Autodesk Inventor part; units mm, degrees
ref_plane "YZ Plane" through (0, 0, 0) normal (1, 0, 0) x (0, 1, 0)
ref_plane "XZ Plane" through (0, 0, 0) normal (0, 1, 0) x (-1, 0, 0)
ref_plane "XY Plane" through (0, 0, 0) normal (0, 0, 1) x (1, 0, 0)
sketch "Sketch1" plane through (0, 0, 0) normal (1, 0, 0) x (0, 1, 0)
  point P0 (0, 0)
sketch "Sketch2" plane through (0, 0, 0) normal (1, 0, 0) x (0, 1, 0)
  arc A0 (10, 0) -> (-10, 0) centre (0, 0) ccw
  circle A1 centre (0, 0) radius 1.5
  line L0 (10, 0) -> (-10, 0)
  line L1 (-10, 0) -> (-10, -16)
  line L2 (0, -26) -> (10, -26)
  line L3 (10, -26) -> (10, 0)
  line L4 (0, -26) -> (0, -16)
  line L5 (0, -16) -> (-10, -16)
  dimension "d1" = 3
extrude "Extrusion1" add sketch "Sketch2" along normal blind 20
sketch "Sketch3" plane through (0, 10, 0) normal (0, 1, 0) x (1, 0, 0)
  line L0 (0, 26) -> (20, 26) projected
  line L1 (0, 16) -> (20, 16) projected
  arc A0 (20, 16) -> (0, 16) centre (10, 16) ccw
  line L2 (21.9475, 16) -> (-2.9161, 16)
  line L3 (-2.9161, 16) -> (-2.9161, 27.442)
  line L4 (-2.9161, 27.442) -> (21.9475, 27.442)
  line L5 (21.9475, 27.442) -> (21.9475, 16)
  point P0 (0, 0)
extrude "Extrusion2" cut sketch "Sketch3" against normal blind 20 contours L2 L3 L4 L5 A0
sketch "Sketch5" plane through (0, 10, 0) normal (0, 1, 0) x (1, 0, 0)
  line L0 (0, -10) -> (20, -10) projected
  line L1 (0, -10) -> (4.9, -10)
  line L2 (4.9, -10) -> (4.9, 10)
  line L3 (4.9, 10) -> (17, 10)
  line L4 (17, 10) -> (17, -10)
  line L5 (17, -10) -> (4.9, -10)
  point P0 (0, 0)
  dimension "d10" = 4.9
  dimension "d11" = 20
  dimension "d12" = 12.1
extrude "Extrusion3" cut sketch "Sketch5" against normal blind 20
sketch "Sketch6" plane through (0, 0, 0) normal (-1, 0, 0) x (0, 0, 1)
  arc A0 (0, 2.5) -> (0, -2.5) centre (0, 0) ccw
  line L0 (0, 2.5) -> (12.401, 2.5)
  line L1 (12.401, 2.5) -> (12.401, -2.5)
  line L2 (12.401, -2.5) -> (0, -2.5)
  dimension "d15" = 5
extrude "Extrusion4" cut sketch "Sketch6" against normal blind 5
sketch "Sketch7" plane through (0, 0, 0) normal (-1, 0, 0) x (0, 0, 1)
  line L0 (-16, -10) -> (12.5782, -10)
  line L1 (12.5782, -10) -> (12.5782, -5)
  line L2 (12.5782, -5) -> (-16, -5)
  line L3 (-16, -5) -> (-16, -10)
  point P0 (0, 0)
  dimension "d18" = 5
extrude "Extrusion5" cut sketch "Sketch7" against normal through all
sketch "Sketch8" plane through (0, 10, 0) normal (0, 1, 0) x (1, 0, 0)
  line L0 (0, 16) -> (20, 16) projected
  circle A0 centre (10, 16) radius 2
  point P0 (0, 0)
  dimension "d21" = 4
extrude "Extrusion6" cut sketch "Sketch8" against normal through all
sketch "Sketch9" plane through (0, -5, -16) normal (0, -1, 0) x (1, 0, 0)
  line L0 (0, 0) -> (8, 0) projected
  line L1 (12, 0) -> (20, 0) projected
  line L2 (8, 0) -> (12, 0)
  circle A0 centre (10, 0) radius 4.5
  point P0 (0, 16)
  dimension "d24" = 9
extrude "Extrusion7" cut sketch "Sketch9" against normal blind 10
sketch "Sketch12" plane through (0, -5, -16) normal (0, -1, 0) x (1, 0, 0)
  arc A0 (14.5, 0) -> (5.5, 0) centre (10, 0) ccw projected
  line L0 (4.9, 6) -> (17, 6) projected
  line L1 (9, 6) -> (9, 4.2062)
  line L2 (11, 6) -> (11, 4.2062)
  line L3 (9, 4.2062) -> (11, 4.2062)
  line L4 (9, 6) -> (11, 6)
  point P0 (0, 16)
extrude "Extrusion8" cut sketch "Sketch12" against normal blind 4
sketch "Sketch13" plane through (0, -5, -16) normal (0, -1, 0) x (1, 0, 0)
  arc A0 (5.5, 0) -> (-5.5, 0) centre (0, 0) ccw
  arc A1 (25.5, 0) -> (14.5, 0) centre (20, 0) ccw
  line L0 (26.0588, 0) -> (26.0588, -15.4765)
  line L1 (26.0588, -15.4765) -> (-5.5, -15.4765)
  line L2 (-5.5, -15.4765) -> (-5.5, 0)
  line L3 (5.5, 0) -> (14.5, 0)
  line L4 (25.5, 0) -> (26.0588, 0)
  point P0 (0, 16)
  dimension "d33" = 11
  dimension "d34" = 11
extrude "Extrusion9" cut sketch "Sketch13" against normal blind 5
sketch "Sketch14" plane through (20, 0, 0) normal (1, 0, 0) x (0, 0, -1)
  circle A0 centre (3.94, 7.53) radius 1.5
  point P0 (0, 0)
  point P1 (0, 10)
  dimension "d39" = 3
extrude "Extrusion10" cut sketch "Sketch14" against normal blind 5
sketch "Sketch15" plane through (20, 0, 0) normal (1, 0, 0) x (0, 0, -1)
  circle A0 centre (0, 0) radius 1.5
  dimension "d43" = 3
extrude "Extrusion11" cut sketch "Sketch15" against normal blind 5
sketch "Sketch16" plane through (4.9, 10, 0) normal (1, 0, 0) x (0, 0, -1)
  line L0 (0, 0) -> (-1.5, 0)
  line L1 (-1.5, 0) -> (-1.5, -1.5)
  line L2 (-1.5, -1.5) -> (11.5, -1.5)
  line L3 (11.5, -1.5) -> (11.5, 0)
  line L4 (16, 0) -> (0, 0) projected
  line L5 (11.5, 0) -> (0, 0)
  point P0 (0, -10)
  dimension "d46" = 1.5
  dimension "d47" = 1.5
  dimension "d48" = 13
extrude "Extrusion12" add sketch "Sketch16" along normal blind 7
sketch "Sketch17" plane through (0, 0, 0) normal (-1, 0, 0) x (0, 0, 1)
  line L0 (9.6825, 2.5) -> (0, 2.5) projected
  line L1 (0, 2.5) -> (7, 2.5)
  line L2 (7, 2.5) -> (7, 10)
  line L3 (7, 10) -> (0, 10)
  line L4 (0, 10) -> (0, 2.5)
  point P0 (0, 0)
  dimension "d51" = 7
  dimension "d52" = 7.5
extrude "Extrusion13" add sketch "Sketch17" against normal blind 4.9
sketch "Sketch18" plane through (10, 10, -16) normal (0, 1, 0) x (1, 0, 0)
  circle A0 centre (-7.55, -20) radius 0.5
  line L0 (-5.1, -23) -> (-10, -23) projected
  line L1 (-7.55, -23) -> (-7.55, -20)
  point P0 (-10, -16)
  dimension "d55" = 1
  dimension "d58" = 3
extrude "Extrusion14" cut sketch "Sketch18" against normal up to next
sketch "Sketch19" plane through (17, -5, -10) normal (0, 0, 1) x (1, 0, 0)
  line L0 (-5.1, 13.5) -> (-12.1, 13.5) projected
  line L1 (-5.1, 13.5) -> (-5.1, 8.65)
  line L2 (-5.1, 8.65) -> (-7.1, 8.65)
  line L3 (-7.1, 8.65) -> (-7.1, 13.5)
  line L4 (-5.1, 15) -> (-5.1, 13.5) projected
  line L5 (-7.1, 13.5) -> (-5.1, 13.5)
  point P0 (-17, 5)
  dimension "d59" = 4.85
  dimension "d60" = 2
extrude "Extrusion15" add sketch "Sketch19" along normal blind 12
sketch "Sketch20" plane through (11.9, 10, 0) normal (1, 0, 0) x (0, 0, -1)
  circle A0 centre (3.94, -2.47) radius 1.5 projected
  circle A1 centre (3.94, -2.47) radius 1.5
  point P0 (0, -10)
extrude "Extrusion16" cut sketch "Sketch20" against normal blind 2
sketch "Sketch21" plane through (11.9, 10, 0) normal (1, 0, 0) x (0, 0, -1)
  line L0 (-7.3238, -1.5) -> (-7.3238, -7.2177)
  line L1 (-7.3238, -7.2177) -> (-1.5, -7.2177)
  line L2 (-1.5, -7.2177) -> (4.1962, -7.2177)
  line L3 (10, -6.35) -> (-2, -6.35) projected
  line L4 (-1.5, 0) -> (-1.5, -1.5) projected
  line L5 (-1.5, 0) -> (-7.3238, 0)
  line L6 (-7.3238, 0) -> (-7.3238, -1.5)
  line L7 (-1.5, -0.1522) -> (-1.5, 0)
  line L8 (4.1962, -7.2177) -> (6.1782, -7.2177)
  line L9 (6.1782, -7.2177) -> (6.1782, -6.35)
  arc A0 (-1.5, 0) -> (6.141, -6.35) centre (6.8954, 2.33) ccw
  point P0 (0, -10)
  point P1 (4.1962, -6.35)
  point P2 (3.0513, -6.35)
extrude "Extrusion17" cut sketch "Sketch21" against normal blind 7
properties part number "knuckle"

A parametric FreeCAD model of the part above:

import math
import FreeCAD as App
import Part
import Sketcher
Q = App.Units.Quantity

doc = App.newDocument("Part")
params = doc.addObject("Spreadsheet::Sheet", "Params")
for row, (alias, value) in enumerate([
    ("sketch1_radius", "10 mm"),
    ("sketch1_height", "16 mm"),
    ("pad1_length", "20 mm"),
    ("sketch2_radius", "10 mm"),
    ("pocket1_length", "20 mm"),
    ("sketch3_height", "20 mm"),
    ("sketch3_width", "12.1 mm"),
    ("pocket2_length", "20 mm"),
    ("sketch4_radius", "2.5 mm"),
    ("pocket3_length", "5 mm"),
    ("sketch5_width", "5 mm"),
    ("sketch6_diameter", "4 mm"),
    ("sketch7_diameter", "9 mm"),
    ("pocket6_length", "10 mm"),
    ("sketch8_width", "2 mm"),
    ("pocket7_length", "4 mm"),
    ("sketch9_radius", "5.5 mm"),
    ("sketch9_width", "9 mm"),
    ("pocket8_length", "5 mm"),
    ("sketch10_diameter", "3 mm"),
    ("pocket9_length", "5 mm"),
    ("sketch11_diameter", "3 mm"),
    ("pocket10_length", "5 mm"),
    ("sketch12_height", "13 mm"),
    ("sketch12_width", "1.5 mm"),
    ("pad2_length", "7 mm"),
    ("sketch13_height", "7 mm"),
    ("sketch13_width", "7.5 mm"),
    ("pad3_length", "4.9 mm"),
    ("sketch14_diameter", "1 mm"),
    ("sketch15_width", "2 mm"),
    ("sketch15_height", "4.85 mm"),
    ("pad4_length", "12 mm"),
    ("sketch16_diameter", "3 mm"),
    ("pocket12_length", "2 mm"),
    ("pocket13_length", "7 mm"),
], start=1):
    params.set(f"A{row}", alias)
    params.set(f"B{row}", "=" + value)
    params.setAlias(f"B{row}", alias)

body = doc.addObject("PartDesign::Body", "Body")

sketch1 = body.newObject("Sketcher::SketchObject", "Sketch")
sketch1.AttachmentSupport = (doc.getObject("YZ_Plane"), [""])
sketch1.MapMode = "FlatFace"
sketch1.addGeometry(Part.ArcOfCircle(Part.Circle(App.Vector(0, 0, 0), App.Vector(0, 0, 1), 10), math.radians(0), math.radians(180)), False)
sketch1.addGeometry(Part.LineSegment(App.Vector(-10, 0, 0), App.Vector(-10, -16, 0)), False)
sketch1.addGeometry(Part.LineSegment(App.Vector(-10, -16, 0), App.Vector(0, -16, 0)), False)
sketch1.addGeometry(Part.LineSegment(App.Vector(0, -16, 0), App.Vector(0, -26, 0)), False)
sketch1.addGeometry(Part.LineSegment(App.Vector(0, -26, 0), App.Vector(10, -26, 0)), False)
sketch1.addGeometry(Part.LineSegment(App.Vector(10, -26, 0), App.Vector(10, 0, 0)), False)
sketch1.addConstraint(Sketcher.Constraint("Tangent", 0, 2, 1, 1))
sketch1.addConstraint(Sketcher.Constraint("Coincident", 1, 2, 2, 1))
sketch1.addConstraint(Sketcher.Constraint("Coincident", 2, 2, 3, 1))
sketch1.addConstraint(Sketcher.Constraint("Coincident", 3, 2, 4, 1))
sketch1.addConstraint(Sketcher.Constraint("Coincident", 4, 2, 5, 1))
sketch1.addConstraint(Sketcher.Constraint("Tangent", 5, 2, 0, 1))
sketch1.addConstraint(Sketcher.Constraint("Vertical", 1))
sketch1.addConstraint(Sketcher.Constraint("Horizontal", 2))
sketch1.addConstraint(Sketcher.Constraint("Vertical", 3))
sketch1.addConstraint(Sketcher.Constraint("Horizontal", 4))
sketch1.addConstraint(Sketcher.Constraint("Vertical", 5))
sketch1.addConstraint(Sketcher.Constraint("Coincident", 0, 3, -1, 1))
sketch1.addConstraint(Sketcher.Constraint("PointOnObject", 2, 2, -2))
sketch1.addConstraint(Sketcher.Constraint("Equal", 4, 3))
sketch1.addConstraint(Sketcher.Constraint("Radius", 0, Q("10 mm")))
sketch1.addConstraint(Sketcher.Constraint("DistanceY", 1, 2, 1, 1, Q("16 mm")))
sketch1.setExpression("Constraints[14]", "Params.sketch1_radius")
sketch1.setExpression("Constraints[15]", "Params.sketch1_height")
pad1 = body.newObject("PartDesign::Pad", "Pad")
pad1.Profile = sketch1
pad1.setExpression("Length", "Params.pad1_length")

sketch2 = body.newObject("Sketcher::SketchObject", "Sketch001")
sketch2.AttachmentSupport = (doc.getObject("XZ_Plane"), [""])
sketch2.MapMode = "FlatFace"
sketch2.AttachmentOffset = App.Placement(App.Vector(0, 0, -10), App.Rotation())
sketch2.addGeometry(Part.LineSegment(App.Vector(-2.9, -16, 0), App.Vector(0, -16, 0)), False)
sketch2.addGeometry(Part.ArcOfCircle(Part.Circle(App.Vector(10, -16, 0), App.Vector(0, 0, 1), 10), math.radians(180), math.radians(360)), False)
sketch2.addGeometry(Part.LineSegment(App.Vector(20, -16, 0), App.Vector(21.9, -16, 0)), False)
sketch2.addGeometry(Part.LineSegment(App.Vector(21.9, -16, 0), App.Vector(21.9, -27.4, 0)), False)
sketch2.addGeometry(Part.LineSegment(App.Vector(21.9, -27.4, 0), App.Vector(-2.9, -27.4, 0)), False)
sketch2.addGeometry(Part.LineSegment(App.Vector(-2.9, -27.4, 0), App.Vector(-2.9, -16, 0)), False)
sketch2.addConstraint(Sketcher.Constraint("Coincident", 0, 2, 1, 1))
sketch2.addConstraint(Sketcher.Constraint("Coincident", 1, 2, 2, 1))
sketch2.addConstraint(Sketcher.Constraint("Coincident", 2, 2, 3, 1))
sketch2.addConstraint(Sketcher.Constraint("Coincident", 3, 2, 4, 1))
sketch2.addConstraint(Sketcher.Constraint("Coincident", 4, 2, 5, 1))
sketch2.addConstraint(Sketcher.Constraint("Coincident", 5, 2, 0, 1))
sketch2.addConstraint(Sketcher.Constraint("Horizontal", 0))
sketch2.addConstraint(Sketcher.Constraint("Horizontal", 2))
sketch2.addConstraint(Sketcher.Constraint("Vertical", 3))
sketch2.addConstraint(Sketcher.Constraint("Horizontal", 4))
sketch2.addConstraint(Sketcher.Constraint("Vertical", 5))
sketch2.addConstraint(Sketcher.Constraint("PointOnObject", 0, 2, -2))
sketch2.addConstraint(Sketcher.Constraint("Horizontal", 1, 3, 0, 2))
sketch2.addConstraint(Sketcher.Constraint("Horizontal", 0, 2, 1, 2))
sketch2.addConstraint(Sketcher.Constraint("Radius", 1, Q("10 mm")))
sketch2.addConstraint(Sketcher.Constraint("DistanceY", 1, 3, -1, 1, Q("16 mm")))
sketch2.addConstraint(Sketcher.Constraint("DistanceX", 0, 1, 0, 2, Q("2.916 mm")))
sketch2.addConstraint(Sketcher.Constraint("DistanceY", 3, 2, 3, 1, Q("11.442 mm")))
sketch2.addConstraint(Sketcher.Constraint("DistanceX", 2, 1, 2, 2, Q("1.9475 mm")))
sketch2.setExpression("Constraints[14]", "Params.sketch2_radius")
pocket1 = body.newObject("PartDesign::Pocket", "Pocket")
pocket1.Profile = sketch2
pocket1.setExpression("Length", "Params.pocket1_length")
pocket1.Reversed = True

sketch3 = body.newObject("Sketcher::SketchObject", "Sketch002")
sketch3.AttachmentSupport = (doc.getObject("XZ_Plane"), [""])
sketch3.MapMode = "FlatFace"
sketch3.AttachmentOffset = App.Placement(App.Vector(0, 0, -10), App.Rotation())
sketch3.addGeometry(Part.LineSegment(App.Vector(5, -10, 0), App.Vector(5, 10, 0)), False)
sketch3.addGeometry(Part.LineSegment(App.Vector(5, 10, 0), App.Vector(17, 10, 0)), False)
sketch3.addGeometry(Part.LineSegment(App.Vector(17, 10, 0), App.Vector(17, -10, 0)), False)
sketch3.addGeometry(Part.LineSegment(App.Vector(17, -10, 0), App.Vector(5, -10, 0)), False)
sketch3.addConstraint(Sketcher.Constraint("Coincident", 0, 2, 1, 1))
sketch3.addConstraint(Sketcher.Constraint("Coincident", 1, 2, 2, 1))
sketch3.addConstraint(Sketcher.Constraint("Coincident", 2, 2, 3, 1))
sketch3.addConstraint(Sketcher.Constraint("Coincident", 3, 2, 0, 1))
sketch3.addConstraint(Sketcher.Constraint("Vertical", 0))
sketch3.addConstraint(Sketcher.Constraint("Horizontal", 1))
sketch3.addConstraint(Sketcher.Constraint("Vertical", 2))
sketch3.addConstraint(Sketcher.Constraint("Horizontal", 3))
sketch3.addConstraint(Sketcher.Constraint("DistanceY", 0, 1, 0, 2, Q("20 mm")))
sketch3.addConstraint(Sketcher.Constraint("DistanceX", 1, 1, 1, 2, Q("12.1 mm")))
sketch3.addConstraint(Sketcher.Constraint("DistanceX", -1, 1, 0, 2, Q("4.9 mm")))
sketch3.addConstraint(Sketcher.Constraint("DistanceY", -1, 1, 0, 2, Q("10 mm")))
sketch3.setExpression("Constraints[8]", "Params.sketch3_height")
sketch3.setExpression("Constraints[9]", "Params.sketch3_width")
pocket2 = body.newObject("PartDesign::Pocket", "Pocket001")
pocket2.Profile = sketch3
pocket2.setExpression("Length", "Params.pocket2_length")
pocket2.Reversed = True

sketch4 = body.newObject("Sketcher::SketchObject", "Sketch003")
sketch4.AttachmentSupport = (doc.getObject("YZ_Plane"), [""])
sketch4.MapMode = "FlatFace"
sketch4.addGeometry(Part.LineSegment(App.Vector(2.5, 12.4, 0), App.Vector(2.5, 0, 0)), False)
sketch4.addGeometry(Part.ArcOfCircle(Part.Circle(App.Vector(0, 0, 0), App.Vector(0, 0, 1), 2.5), math.radians(180), math.radians(360)), False)
sketch4.addGeometry(Part.LineSegment(App.Vector(-2.5, 0, 0), App.Vector(-2.5, 12.4, 0)), False)
sketch4.addGeometry(Part.LineSegment(App.Vector(-2.5, 12.4, 0), App.Vector(2.5, 12.4, 0)), False)
sketch4.addConstraint(Sketcher.Constraint("Tangent", 0, 2, 1, 2))
sketch4.addConstraint(Sketcher.Constraint("Tangent", 1, 1, 2, 1))
sketch4.addConstraint(Sketcher.Constraint("Coincident", 2, 2, 3, 1))
sketch4.addConstraint(Sketcher.Constraint("Coincident", 3, 2, 0, 1))
sketch4.addConstraint(Sketcher.Constraint("Vertical", 0))
sketch4.addConstraint(Sketcher.Constraint("Vertical", 2))
sketch4.addConstraint(Sketcher.Constraint("Horizontal", 3))
sketch4.addConstraint(Sketcher.Constraint("Coincident", 1, 3, -1, 1))
sketch4.addConstraint(Sketcher.Constraint("Radius", 1, Q("2.5 mm")))
sketch4.addConstraint(Sketcher.Constraint("DistanceY", 0, 2, 0, 1, Q("12.401 mm")))
sketch4.setExpression("Constraints[8]", "Params.sketch4_radius")
pocket3 = body.newObject("PartDesign::Pocket", "Pocket002")
pocket3.Profile = sketch4
pocket3.setExpression("Length", "Params.pocket3_length")
pocket3.Reversed = True

sketch5 = body.newObject("Sketcher::SketchObject", "Sketch004")
sketch5.AttachmentSupport = (doc.getObject("YZ_Plane"), [""])
sketch5.MapMode = "FlatFace"
sketch5.addGeometry(Part.LineSegment(App.Vector(-5, -16, 0), App.Vector(-10, -16, 0)), False)
sketch5.addGeometry(Part.LineSegment(App.Vector(-10, -16, 0), App.Vector(-10, 13, 0)), False)
sketch5.addGeometry(Part.LineSegment(App.Vector(-10, 13, 0), App.Vector(-5, 13, 0)), False)
sketch5.addGeometry(Part.LineSegment(App.Vector(-5, 13, 0), App.Vector(-5, -16, 0)), False)
sketch5.addConstraint(Sketcher.Constraint("Coincident", 0, 2, 1, 1))
sketch5.addConstraint(Sketcher.Constraint("Coincident", 1, 2, 2, 1))
sketch5.addConstraint(Sketcher.Constraint("Coincident", 2, 2, 3, 1))
sketch5.addConstraint(Sketcher.Constraint("Coincident", 3, 2, 0, 1))
sketch5.addConstraint(Sketcher.Constraint("Horizontal", 0))
sketch5.addConstraint(Sketcher.Constraint("Vertical", 1))
sketch5.addConstraint(Sketcher.Constraint("Horizontal", 2))
sketch5.addConstraint(Sketcher.Constraint("Vertical", 3))
sketch5.addConstraint(Sketcher.Constraint("DistanceX", 0, 2, 0, 1, Q("5 mm")))
sketch5.addConstraint(Sketcher.Constraint("DistanceX", 2, 2, -1, 1, Q("5 mm")))
sketch5.addConstraint(Sketcher.Constraint("DistanceY", 0, 2, -1, 1, Q("16 mm")))
sketch5.addConstraint(Sketcher.Constraint("DistanceY", 1, 1, 1, 2, Q("28.5782 mm")))
sketch5.setExpression("Constraints[8]", "Params.sketch5_width")
pocket4 = body.newObject("PartDesign::Pocket", "Pocket003")
pocket4.Profile = sketch5
pocket4.Type = "ThroughAll"
pocket4.Reversed = True

sketch6 = body.newObject("Sketcher::SketchObject", "Sketch005")
sketch6.AttachmentSupport = (doc.getObject("XZ_Plane"), [""])
sketch6.MapMode = "FlatFace"
sketch6.AttachmentOffset = App.Placement(App.Vector(0, 0, -10), App.Rotation())
sketch6.addGeometry(Part.Circle(App.Vector(10, -16, 0), App.Vector(0, 0, 1), 2), False)
sketch6.addConstraint(Sketcher.Constraint("Diameter", 0, Q("4 mm")))
sketch6.addConstraint(Sketcher.Constraint("DistanceX", -1, 1, 0, 3, Q("10 mm")))
sketch6.addConstraint(Sketcher.Constraint("DistanceY", 0, 3, -1, 1, Q("16 mm")))
sketch6.setExpression("Constraints[0]", "Params.sketch6_diameter")
pocket5 = body.newObject("PartDesign::Pocket", "Pocket004")
pocket5.Profile = sketch6
pocket5.Type = "ThroughAll"
pocket5.Reversed = True

sketch7 = body.newObject("Sketcher::SketchObject", "Sketch006")
sketch7.AttachmentSupport = (doc.getObject("XZ_Plane"), [""])
sketch7.MapMode = "FlatFace"
sketch7.AttachmentOffset = App.Placement(App.Vector(0, 0, 5), App.Rotation())
sketch7.addGeometry(Part.Circle(App.Vector(10, -16, 0), App.Vector(0, 0, 1), 4.5), False)
sketch7.addConstraint(Sketcher.Constraint("Diameter", 0, Q("9 mm")))
sketch7.addConstraint(Sketcher.Constraint("DistanceX", -1, 1, 0, 3, Q("10 mm")))
sketch7.addConstraint(Sketcher.Constraint("DistanceY", 0, 3, -1, 1, Q("16 mm")))
sketch7.setExpression("Constraints[0]", "Params.sketch7_diameter")
pocket6 = body.newObject("PartDesign::Pocket", "Pocket005")
pocket6.Profile = sketch7
pocket6.setExpression("Length", "Params.pocket6_length")

sketch8 = body.newObject("Sketcher::SketchObject", "Sketch007")
sketch8.AttachmentSupport = (doc.getObject("XZ_Plane"), [""])
sketch8.MapMode = "FlatFace"
sketch8.AttachmentOffset = App.Placement(App.Vector(0, 0, 5), App.Rotation())
sketch8.addGeometry(Part.LineSegment(App.Vector(11, -11.8, 0), App.Vector(11, -10, 0)), False)
sketch8.addGeometry(Part.LineSegment(App.Vector(11, -10, 0), App.Vector(9, -10, 0)), False)
sketch8.addGeometry(Part.LineSegment(App.Vector(9, -10, 0), App.Vector(9, -11.8, 0)), False)
sketch8.addGeometry(Part.LineSegment(App.Vector(9, -11.8, 0), App.Vector(11, -11.8, 0)), False)
sketch8.addConstraint(Sketcher.Constraint("Coincident", 0, 2, 1, 1))
sketch8.addConstraint(Sketcher.Constraint("Coincident", 1, 2, 2, 1))
sketch8.addConstraint(Sketcher.Constraint("Coincident", 2, 2, 3, 1))
sketch8.addConstraint(Sketcher.Constraint("Coincident", 3, 2, 0, 1))
sketch8.addConstraint(Sketcher.Constraint("Vertical", 0))
sketch8.addConstraint(Sketcher.Constraint("Horizontal", 1))
sketch8.addConstraint(Sketcher.Constraint("Vertical", 2))
sketch8.addConstraint(Sketcher.Constraint("Horizontal", 3))
sketch8.addConstraint(Sketcher.Constraint("DistanceX", 1, 2, 1, 1, Q("2 mm")))
sketch8.addConstraint(Sketcher.Constraint("DistanceX", -1, 1, 0, 2, Q("11 mm")))
sketch8.addConstraint(Sketcher.Constraint("DistanceY", 0, 2, -1, 1, Q("10 mm")))
sketch8.addConstraint(Sketcher.Constraint("DistanceY", 0, 1, 0, 2, Q("1.7938 mm")))
sketch8.setExpression("Constraints[8]", "Params.sketch8_width")
pocket7 = body.newObject("PartDesign::Pocket", "Pocket006")
pocket7.Profile = sketch8
pocket7.setExpression("Length", "Params.pocket7_length")

sketch9 = body.newObject("Sketcher::SketchObject", "Sketch008")
sketch9.AttachmentSupport = (doc.getObject("XZ_Plane"), [""])
sketch9.MapMode = "FlatFace"
sketch9.AttachmentOffset = App.Placement(App.Vector(0, 0, 5), App.Rotation())
sketch9.addGeometry(Part.LineSegment(App.Vector(14.5, -16, 0), App.Vector(5.5, -16, 0)), False)
sketch9.addGeometry(Part.ArcOfCircle(Part.Circle(App.Vector(0, -16, 0), App.Vector(0, 0, 1), 5.5), math.radians(0), math.radians(180)), False)
sketch9.addGeometry(Part.LineSegment(App.Vector(-5.5, -16, 0), App.Vector(-5.5, -31.5, 0)), False)
sketch9.addGeometry(Part.LineSegment(App.Vector(-5.5, -31.5, 0), App.Vector(26.1, -31.5, 0)), False)
sketch9.addGeometry(Part.LineSegment(App.Vector(26.1, -31.5, 0), App.Vector(26.1, -16, 0)), False)
sketch9.addGeometry(Part.LineSegment(App.Vector(26.1, -16, 0), App.Vector(25.5, -16, 0)), False)
sketch9.addGeometry(Part.ArcOfCircle(Part.Circle(App.Vector(20, -16, 0), App.Vector(0, 0, 1), 5.5), math.radians(0), math.radians(180)), False)
sketch9.addConstraint(Sketcher.Constraint("Coincident", 0, 2, 1, 1))
sketch9.addConstraint(Sketcher.Constraint("Tangent", 1, 2, 2, 1))
sketch9.addConstraint(Sketcher.Constraint("Coincident", 2, 2, 3, 1))
sketch9.addConstraint(Sketcher.Constraint("Coincident", 3, 2, 4, 1))
sketch9.addConstraint(Sketcher.Constraint("Coincident", 4, 2, 5, 1))
sketch9.addConstraint(Sketcher.Constraint("Coincident", 5, 2, 6, 1))
sketch9.addConstraint(Sketcher.Constraint("Coincident", 6, 2, 0, 1))
sketch9.addConstraint(Sketcher.Constraint("Horizontal", 0))
sketch9.addConstraint(Sketcher.Constraint("Vertical", 2))
sketch9.addConstraint(Sketcher.Constraint("Horizontal", 3))
sketch9.addConstraint(Sketcher.Constraint("Vertical", 4))
sketch9.addConstraint(Sketcher.Constraint("Horizontal", 5))
sketch9.addConstraint(Sketcher.Constraint("Equal", 1, 6))
sketch9.addConstraint(Sketcher.Constraint("Symmetric", 0, 2, 1, 2, -2))
sketch9.addConstraint(Sketcher.Constraint("Horizontal", 1, 3, 6, 3))
sketch9.addConstraint(Sketcher.Constraint("Horizontal", 1, 2, 4, 2))
sketch9.addConstraint(Sketcher.Constraint("Radius", 1, Q("5.5 mm")))
sketch9.addConstraint(Sketcher.Constraint("DistanceX", 0, 2, 0, 1, Q("9 mm")))
sketch9.addConstraint(Sketcher.Constraint("DistanceY", 1, 3, -1, 1, Q("16 mm")))
sketch9.addConstraint(Sketcher.Constraint("DistanceX", 3, 1, 3, 2, Q("31.5588 mm")))
sketch9.addConstraint(Sketcher.Constraint("DistanceY", 2, 2, 2, 1, Q("15.4765 mm")))
sketch9.setExpression("Constraints[16]", "Params.sketch9_radius")
sketch9.setExpression("Constraints[17]", "Params.sketch9_width")
pocket8 = body.newObject("PartDesign::Pocket", "Pocket007")
pocket8.Profile = sketch9
pocket8.setExpression("Length", "Params.pocket8_length")

sketch10 = body.newObject("Sketcher::SketchObject", "Sketch009")
sketch10.AttachmentSupport = (doc.getObject("YZ_Plane"), [""])
sketch10.MapMode = "FlatFace"
sketch10.AttachmentOffset = App.Placement(App.Vector(0, 0, 20), App.Rotation())
sketch10.addGeometry(Part.Circle(App.Vector(7.5, -3.9, 0), App.Vector(0, 0, 1), 1.5), False)
sketch10.addConstraint(Sketcher.Constraint("Diameter", 0, Q("3 mm")))
sketch10.addConstraint(Sketcher.Constraint("DistanceX", -1, 1, 0, 3, Q("7.53 mm")))
sketch10.addConstraint(Sketcher.Constraint("DistanceY", 0, 3, -1, 1, Q("3.94 mm")))
sketch10.setExpression("Constraints[0]", "Params.sketch10_diameter")
pocket9 = body.newObject("PartDesign::Pocket", "Pocket008")
pocket9.Profile = sketch10
pocket9.setExpression("Length", "Params.pocket9_length")

sketch11 = body.newObject("Sketcher::SketchObject", "Sketch010")
sketch11.AttachmentSupport = (doc.getObject("YZ_Plane"), [""])
sketch11.MapMode = "FlatFace"
sketch11.AttachmentOffset = App.Placement(App.Vector(0, 0, 20), App.Rotation())
sketch11.addGeometry(Part.Circle(App.Vector(0, 0, 0), App.Vector(0, 0, 1), 1.5), False)
sketch11.addConstraint(Sketcher.Constraint("Coincident", 0, 3, -1, 1))
sketch11.addConstraint(Sketcher.Constraint("Diameter", 0, Q("3 mm")))
sketch11.setExpression("Constraints[1]", "Params.sketch11_diameter")
pocket10 = body.newObject("PartDesign::Pocket", "Pocket009")
pocket10.Profile = sketch11
pocket10.setExpression("Length", "Params.pocket10_length")

sketch12 = body.newObject("Sketcher::SketchObject", "Sketch011")
sketch12.AttachmentSupport = (doc.getObject("YZ_Plane"), [""])
sketch12.MapMode = "FlatFace"
sketch12.AttachmentOffset = App.Placement(App.Vector(0, 0, 4.9), App.Rotation())
sketch12.addGeometry(Part.LineSegment(App.Vector(10, -11.5, 0), App.Vector(10, 1.5, 0)), False)
sketch12.addGeometry(Part.LineSegment(App.Vector(10, 1.5, 0), App.Vector(8.5, 1.5, 0)), False)
sketch12.addGeometry(Part.LineSegment(App.Vector(8.5, 1.5, 0), App.Vector(8.5, -11.5, 0)), False)
sketch12.addGeometry(Part.LineSegment(App.Vector(8.5, -11.5, 0), App.Vector(10, -11.5, 0)), False)
sketch12.addConstraint(Sketcher.Constraint("Coincident", 0, 2, 1, 1))
sketch12.addConstraint(Sketcher.Constraint("Coincident", 1, 2, 2, 1))
sketch12.addConstraint(Sketcher.Constraint("Coincident", 2, 2, 3, 1))
sketch12.addConstraint(Sketcher.Constraint("Coincident", 3, 2, 0, 1))
sketch12.addConstraint(Sketcher.Constraint("Vertical", 0))
sketch12.addConstraint(Sketcher.Constraint("Horizontal", 1))
sketch12.addConstraint(Sketcher.Constraint("Vertical", 2))
sketch12.addConstraint(Sketcher.Constraint("Horizontal", 3))
sketch12.addConstraint(Sketcher.Constraint("DistanceY", 0, 1, 0, 2, Q("13 mm")))
sketch12.addConstraint(Sketcher.Constraint("DistanceX", 1, 2, 1, 1, Q("1.5 mm")))
sketch12.addConstraint(Sketcher.Constraint("DistanceY", -1, 1, 0, 2, Q("1.5 mm")))
sketch12.addConstraint(Sketcher.Constraint("DistanceX", -1, 1, 0, 2, Q("10 mm")))
sketch12.setExpression("Constraints[8]", "Params.sketch12_height")
sketch12.setExpression("Constraints[9]", "Params.sketch12_width")
pad2 = body.newObject("PartDesign::Pad", "Pad001")
pad2.Profile = sketch12
pad2.setExpression("Length", "Params.pad2_length")

sketch13 = body.newObject("Sketcher::SketchObject", "Sketch012")
sketch13.AttachmentSupport = (doc.getObject("YZ_Plane"), [""])
sketch13.MapMode = "FlatFace"
sketch13.addGeometry(Part.LineSegment(App.Vector(2, 0, 0), App.Vector(2, 7, 0)), False)
sketch13.addGeometry(Part.LineSegment(App.Vector(2, 7, 0), App.Vector(10, 7, 0)), False)
sketch13.addGeometry(Part.LineSegment(App.Vector(10, 7, 0), App.Vector(10, 0, 0)), False)
sketch13.addGeometry(Part.LineSegment(App.Vector(10, 0, 0), App.Vector(2, 0, 0)), False)
sketch13.addConstraint(Sketcher.Constraint("Coincident", 0, 2, 1, 1))
sketch13.addConstraint(Sketcher.Constraint("Coincident", 1, 2, 2, 1))
sketch13.addConstraint(Sketcher.Constraint("Coincident", 2, 2, 3, 1))
sketch13.addConstraint(Sketcher.Constraint("Coincident", 3, 2, 0, 1))
sketch13.addConstraint(Sketcher.Constraint("Vertical", 0))
sketch13.addConstraint(Sketcher.Constraint("Horizontal", 1))
sketch13.addConstraint(Sketcher.Constraint("Vertical", 2))
sketch13.addConstraint(Sketcher.Constraint("Horizontal", 3))
sketch13.addConstraint(Sketcher.Constraint("PointOnObject", 2, 2, -1))
sketch13.addConstraint(Sketcher.Constraint("DistanceY", 0, 1, 0, 2, Q("7 mm")))
sketch13.addConstraint(Sketcher.Constraint("DistanceX", 1, 1, 1, 2, Q("7.5 mm")))
sketch13.addConstraint(Sketcher.Constraint("DistanceX", -1, 1, 1, 2, Q("10 mm")))
sketch13.setExpression("Constraints[9]", "Params.sketch13_height")
sketch13.setExpression("Constraints[10]", "Params.sketch13_width")
pad3 = body.newObject("PartDesign::Pad", "Pad002")
pad3.Profile = sketch13
pad3.setExpression("Length", "Params.pad3_length")

sketch14 = body.newObject("Sketcher::SketchObject", "Sketch013")
sketch14.AttachmentSupport = (doc.getObject("XZ_Plane"), [""])
sketch14.MapMode = "FlatFace"
sketch14.AttachmentOffset = App.Placement(App.Vector(0, 0, -10), App.Rotation())
sketch14.addGeometry(Part.Circle(App.Vector(2.5, 4, 0), App.Vector(0, 0, 1), 0.5), False)
sketch14.addConstraint(Sketcher.Constraint("Diameter", 0, Q("1 mm")))
sketch14.addConstraint(Sketcher.Constraint("DistanceY", -1, 1, 0, 3, Q("4 mm")))
sketch14.addConstraint(Sketcher.Constraint("DistanceX", -1, 1, 0, 3, Q("2.45 mm")))
sketch14.setExpression("Constraints[0]", "Params.sketch14_diameter")
pocket11 = body.newObject("PartDesign::Pocket", "Pocket010")
pocket11.Profile = sketch14
pocket11.Type = "UpToFirst"
pocket11.Reversed = True

sketch15 = body.newObject("Sketcher::SketchObject", "Sketch014")
sketch15.AttachmentSupport = (doc.getObject("XY_Plane"), [""])
sketch15.MapMode = "FlatFace"
sketch15.AttachmentOffset = App.Placement(App.Vector(0, 0, -10), App.Rotation())
sketch15.addGeometry(Part.LineSegment(App.Vector(11.9, 3.6, 0), App.Vector(11.9, 8.5, 0)), False)
sketch15.addGeometry(Part.LineSegment(App.Vector(11.9, 8.5, 0), App.Vector(9.9, 8.5, 0)), False)
sketch15.addGeometry(Part.LineSegment(App.Vector(9.9, 8.5, 0), App.Vector(9.9, 3.6, 0)), False)
sketch15.addGeometry(Part.LineSegment(App.Vector(9.9, 3.6, 0), App.Vector(11.9, 3.6, 0)), False)
sketch15.addConstraint(Sketcher.Constraint("Coincident", 0, 2, 1, 1))
sketch15.addConstraint(Sketcher.Constraint("Coincident", 1, 2, 2, 1))
sketch15.addConstraint(Sketcher.Constraint("Coincident", 2, 2, 3, 1))
sketch15.addConstraint(Sketcher.Constraint("Coincident", 3, 2, 0, 1))
sketch15.addConstraint(Sketcher.Constraint("Vertical", 0))
sketch15.addConstraint(Sketcher.Constraint("Horizontal", 1))
sketch15.addConstraint(Sketcher.Constraint("Vertical", 2))
sketch15.addConstraint(Sketcher.Constraint("Horizontal", 3))
sketch15.addConstraint(Sketcher.Constraint("DistanceX", 1, 2, 1, 1, Q("2 mm")))
sketch15.addConstraint(Sketcher.Constraint("DistanceY", 0, 1, 0, 2, Q("4.85 mm")))
sketch15.addConstraint(Sketcher.Constraint("DistanceX", -1, 1, 0, 2, Q("11.9 mm")))
sketch15.addConstraint(Sketcher.Constraint("DistanceY", -1, 1, 0, 2, Q("8.5 mm")))
sketch15.setExpression("Constraints[8]", "Params.sketch15_width")
sketch15.setExpression("Constraints[9]", "Params.sketch15_height")
pad4 = body.newObject("PartDesign::Pad", "Pad003")
pad4.Profile = sketch15
pad4.setExpression("Length", "Params.pad4_length")

sketch16 = body.newObject("Sketcher::SketchObject", "Sketch015")
sketch16.AttachmentSupport = (doc.getObject("YZ_Plane"), [""])
sketch16.MapMode = "FlatFace"
sketch16.AttachmentOffset = App.Placement(App.Vector(0, 0, 11.9), App.Rotation())
sketch16.addGeometry(Part.Circle(App.Vector(7.5, -3.9, 0), App.Vector(0, 0, 1), 1.5), False)
sketch16.addConstraint(Sketcher.Constraint("Diameter", 0, Q("3 mm")))
sketch16.addConstraint(Sketcher.Constraint("DistanceX", -1, 1, 0, 3, Q("7.53 mm")))
sketch16.addConstraint(Sketcher.Constraint("DistanceY", 0, 3, -1, 1, Q("3.94 mm")))
sketch16.setExpression("Constraints[0]", "Params.sketch16_diameter")
pocket12 = body.newObject("PartDesign::Pocket", "Pocket011")
pocket12.Profile = sketch16
pocket12.setExpression("Length", "Params.pocket12_length")

sketch17 = body.newObject("Sketcher::SketchObject", "Sketch016")
sketch17.AttachmentSupport = (doc.getObject("YZ_Plane"), [""])
sketch17.MapMode = "FlatFace"
sketch17.AttachmentOffset = App.Placement(App.Vector(0, 0, 11.9), App.Rotation())
sketch17.addGeometry(Part.LineSegment(App.Vector(10, 7.324, 0), App.Vector(2.782, 7.324, 0)), False)
sketch17.addGeometry(Part.LineSegment(App.Vector(2.782, 7.324, 0), App.Vector(2.782, -6.178, 0)), False)
sketch17.addGeometry(Part.LineSegment(App.Vector(2.782, -6.178, 0), App.Vector(3.65, -6.178, 0)), False)
sketch17.addGeometry(Part.LineSegment(App.Vector(3.65, -6.178, 0), App.Vector(3.65, -6.141, 0)), False)
sketch17.addGeometry(Part.ArcOfCircle(Part.Circle(App.Vector(12.33, -6.895, 0), App.Vector(0, 0, 1), 8.713), math.radians(106), math.radians(175)), False)
sketch17.addGeometry(Part.LineSegment(App.Vector(10, 1.5, 0), App.Vector(10, 7.324, 0)), False)
sketch17.addConstraint(Sketcher.Constraint("Coincident", 0, 2, 1, 1))
sketch17.addConstraint(Sketcher.Constraint("Coincident", 1, 2, 2, 1))
sketch17.addConstraint(Sketcher.Constraint("Coincident", 2, 2, 3, 1))
sketch17.addConstraint(Sketcher.Constraint("Coincident", 3, 2, 4, 2))
sketch17.addConstraint(Sketcher.Constraint("Coincident", 4, 1, 5, 1))
sketch17.addConstraint(Sketcher.Constraint("Coincident", 5, 2, 0, 1))
sketch17.addConstraint(Sketcher.Constraint("Horizontal", 0))
sketch17.addConstraint(Sketcher.Constraint("Vertical", 1))
sketch17.addConstraint(Sketcher.Constraint("Horizontal", 2))
sketch17.addConstraint(Sketcher.Constraint("Vertical", 3))
sketch17.addConstraint(Sketcher.Constraint("Vertical", 5))
sketch17.addConstraint(Sketcher.Constraint("DistanceX", -1, 1, 4, 1, Q("10 mm")))
sketch17.addConstraint(Sketcher.Constraint("DistanceY", -1, 1, 4, 1, Q("1.5 mm")))
sketch17.addConstraint(Sketcher.Constraint("Radius", 4, Q("8.7127 mm")))
sketch17.addConstraint(Sketcher.Constraint("DistanceY", 1, 2, 1, 1, Q("13.502 mm")))
sketch17.addConstraint(Sketcher.Constraint("DistanceX", -1, 1, 4, 3, Q("12.33 mm")))
sketch17.addConstraint(Sketcher.Constraint("DistanceX", -1, 1, 2, 2, Q("3.65 mm")))
sketch17.addConstraint(Sketcher.Constraint("DistanceX", 0, 2, 0, 1, Q("7.2177 mm")))
sketch17.addConstraint(Sketcher.Constraint("DistanceY", 3, 1, 3, 2, Q("0.0372 mm")))
pocket13 = body.newObject("PartDesign::Pocket", "Pocket012")
pocket13.Profile = sketch17
pocket13.setExpression("Length", "Params.pocket13_length")

doc.recompute()
